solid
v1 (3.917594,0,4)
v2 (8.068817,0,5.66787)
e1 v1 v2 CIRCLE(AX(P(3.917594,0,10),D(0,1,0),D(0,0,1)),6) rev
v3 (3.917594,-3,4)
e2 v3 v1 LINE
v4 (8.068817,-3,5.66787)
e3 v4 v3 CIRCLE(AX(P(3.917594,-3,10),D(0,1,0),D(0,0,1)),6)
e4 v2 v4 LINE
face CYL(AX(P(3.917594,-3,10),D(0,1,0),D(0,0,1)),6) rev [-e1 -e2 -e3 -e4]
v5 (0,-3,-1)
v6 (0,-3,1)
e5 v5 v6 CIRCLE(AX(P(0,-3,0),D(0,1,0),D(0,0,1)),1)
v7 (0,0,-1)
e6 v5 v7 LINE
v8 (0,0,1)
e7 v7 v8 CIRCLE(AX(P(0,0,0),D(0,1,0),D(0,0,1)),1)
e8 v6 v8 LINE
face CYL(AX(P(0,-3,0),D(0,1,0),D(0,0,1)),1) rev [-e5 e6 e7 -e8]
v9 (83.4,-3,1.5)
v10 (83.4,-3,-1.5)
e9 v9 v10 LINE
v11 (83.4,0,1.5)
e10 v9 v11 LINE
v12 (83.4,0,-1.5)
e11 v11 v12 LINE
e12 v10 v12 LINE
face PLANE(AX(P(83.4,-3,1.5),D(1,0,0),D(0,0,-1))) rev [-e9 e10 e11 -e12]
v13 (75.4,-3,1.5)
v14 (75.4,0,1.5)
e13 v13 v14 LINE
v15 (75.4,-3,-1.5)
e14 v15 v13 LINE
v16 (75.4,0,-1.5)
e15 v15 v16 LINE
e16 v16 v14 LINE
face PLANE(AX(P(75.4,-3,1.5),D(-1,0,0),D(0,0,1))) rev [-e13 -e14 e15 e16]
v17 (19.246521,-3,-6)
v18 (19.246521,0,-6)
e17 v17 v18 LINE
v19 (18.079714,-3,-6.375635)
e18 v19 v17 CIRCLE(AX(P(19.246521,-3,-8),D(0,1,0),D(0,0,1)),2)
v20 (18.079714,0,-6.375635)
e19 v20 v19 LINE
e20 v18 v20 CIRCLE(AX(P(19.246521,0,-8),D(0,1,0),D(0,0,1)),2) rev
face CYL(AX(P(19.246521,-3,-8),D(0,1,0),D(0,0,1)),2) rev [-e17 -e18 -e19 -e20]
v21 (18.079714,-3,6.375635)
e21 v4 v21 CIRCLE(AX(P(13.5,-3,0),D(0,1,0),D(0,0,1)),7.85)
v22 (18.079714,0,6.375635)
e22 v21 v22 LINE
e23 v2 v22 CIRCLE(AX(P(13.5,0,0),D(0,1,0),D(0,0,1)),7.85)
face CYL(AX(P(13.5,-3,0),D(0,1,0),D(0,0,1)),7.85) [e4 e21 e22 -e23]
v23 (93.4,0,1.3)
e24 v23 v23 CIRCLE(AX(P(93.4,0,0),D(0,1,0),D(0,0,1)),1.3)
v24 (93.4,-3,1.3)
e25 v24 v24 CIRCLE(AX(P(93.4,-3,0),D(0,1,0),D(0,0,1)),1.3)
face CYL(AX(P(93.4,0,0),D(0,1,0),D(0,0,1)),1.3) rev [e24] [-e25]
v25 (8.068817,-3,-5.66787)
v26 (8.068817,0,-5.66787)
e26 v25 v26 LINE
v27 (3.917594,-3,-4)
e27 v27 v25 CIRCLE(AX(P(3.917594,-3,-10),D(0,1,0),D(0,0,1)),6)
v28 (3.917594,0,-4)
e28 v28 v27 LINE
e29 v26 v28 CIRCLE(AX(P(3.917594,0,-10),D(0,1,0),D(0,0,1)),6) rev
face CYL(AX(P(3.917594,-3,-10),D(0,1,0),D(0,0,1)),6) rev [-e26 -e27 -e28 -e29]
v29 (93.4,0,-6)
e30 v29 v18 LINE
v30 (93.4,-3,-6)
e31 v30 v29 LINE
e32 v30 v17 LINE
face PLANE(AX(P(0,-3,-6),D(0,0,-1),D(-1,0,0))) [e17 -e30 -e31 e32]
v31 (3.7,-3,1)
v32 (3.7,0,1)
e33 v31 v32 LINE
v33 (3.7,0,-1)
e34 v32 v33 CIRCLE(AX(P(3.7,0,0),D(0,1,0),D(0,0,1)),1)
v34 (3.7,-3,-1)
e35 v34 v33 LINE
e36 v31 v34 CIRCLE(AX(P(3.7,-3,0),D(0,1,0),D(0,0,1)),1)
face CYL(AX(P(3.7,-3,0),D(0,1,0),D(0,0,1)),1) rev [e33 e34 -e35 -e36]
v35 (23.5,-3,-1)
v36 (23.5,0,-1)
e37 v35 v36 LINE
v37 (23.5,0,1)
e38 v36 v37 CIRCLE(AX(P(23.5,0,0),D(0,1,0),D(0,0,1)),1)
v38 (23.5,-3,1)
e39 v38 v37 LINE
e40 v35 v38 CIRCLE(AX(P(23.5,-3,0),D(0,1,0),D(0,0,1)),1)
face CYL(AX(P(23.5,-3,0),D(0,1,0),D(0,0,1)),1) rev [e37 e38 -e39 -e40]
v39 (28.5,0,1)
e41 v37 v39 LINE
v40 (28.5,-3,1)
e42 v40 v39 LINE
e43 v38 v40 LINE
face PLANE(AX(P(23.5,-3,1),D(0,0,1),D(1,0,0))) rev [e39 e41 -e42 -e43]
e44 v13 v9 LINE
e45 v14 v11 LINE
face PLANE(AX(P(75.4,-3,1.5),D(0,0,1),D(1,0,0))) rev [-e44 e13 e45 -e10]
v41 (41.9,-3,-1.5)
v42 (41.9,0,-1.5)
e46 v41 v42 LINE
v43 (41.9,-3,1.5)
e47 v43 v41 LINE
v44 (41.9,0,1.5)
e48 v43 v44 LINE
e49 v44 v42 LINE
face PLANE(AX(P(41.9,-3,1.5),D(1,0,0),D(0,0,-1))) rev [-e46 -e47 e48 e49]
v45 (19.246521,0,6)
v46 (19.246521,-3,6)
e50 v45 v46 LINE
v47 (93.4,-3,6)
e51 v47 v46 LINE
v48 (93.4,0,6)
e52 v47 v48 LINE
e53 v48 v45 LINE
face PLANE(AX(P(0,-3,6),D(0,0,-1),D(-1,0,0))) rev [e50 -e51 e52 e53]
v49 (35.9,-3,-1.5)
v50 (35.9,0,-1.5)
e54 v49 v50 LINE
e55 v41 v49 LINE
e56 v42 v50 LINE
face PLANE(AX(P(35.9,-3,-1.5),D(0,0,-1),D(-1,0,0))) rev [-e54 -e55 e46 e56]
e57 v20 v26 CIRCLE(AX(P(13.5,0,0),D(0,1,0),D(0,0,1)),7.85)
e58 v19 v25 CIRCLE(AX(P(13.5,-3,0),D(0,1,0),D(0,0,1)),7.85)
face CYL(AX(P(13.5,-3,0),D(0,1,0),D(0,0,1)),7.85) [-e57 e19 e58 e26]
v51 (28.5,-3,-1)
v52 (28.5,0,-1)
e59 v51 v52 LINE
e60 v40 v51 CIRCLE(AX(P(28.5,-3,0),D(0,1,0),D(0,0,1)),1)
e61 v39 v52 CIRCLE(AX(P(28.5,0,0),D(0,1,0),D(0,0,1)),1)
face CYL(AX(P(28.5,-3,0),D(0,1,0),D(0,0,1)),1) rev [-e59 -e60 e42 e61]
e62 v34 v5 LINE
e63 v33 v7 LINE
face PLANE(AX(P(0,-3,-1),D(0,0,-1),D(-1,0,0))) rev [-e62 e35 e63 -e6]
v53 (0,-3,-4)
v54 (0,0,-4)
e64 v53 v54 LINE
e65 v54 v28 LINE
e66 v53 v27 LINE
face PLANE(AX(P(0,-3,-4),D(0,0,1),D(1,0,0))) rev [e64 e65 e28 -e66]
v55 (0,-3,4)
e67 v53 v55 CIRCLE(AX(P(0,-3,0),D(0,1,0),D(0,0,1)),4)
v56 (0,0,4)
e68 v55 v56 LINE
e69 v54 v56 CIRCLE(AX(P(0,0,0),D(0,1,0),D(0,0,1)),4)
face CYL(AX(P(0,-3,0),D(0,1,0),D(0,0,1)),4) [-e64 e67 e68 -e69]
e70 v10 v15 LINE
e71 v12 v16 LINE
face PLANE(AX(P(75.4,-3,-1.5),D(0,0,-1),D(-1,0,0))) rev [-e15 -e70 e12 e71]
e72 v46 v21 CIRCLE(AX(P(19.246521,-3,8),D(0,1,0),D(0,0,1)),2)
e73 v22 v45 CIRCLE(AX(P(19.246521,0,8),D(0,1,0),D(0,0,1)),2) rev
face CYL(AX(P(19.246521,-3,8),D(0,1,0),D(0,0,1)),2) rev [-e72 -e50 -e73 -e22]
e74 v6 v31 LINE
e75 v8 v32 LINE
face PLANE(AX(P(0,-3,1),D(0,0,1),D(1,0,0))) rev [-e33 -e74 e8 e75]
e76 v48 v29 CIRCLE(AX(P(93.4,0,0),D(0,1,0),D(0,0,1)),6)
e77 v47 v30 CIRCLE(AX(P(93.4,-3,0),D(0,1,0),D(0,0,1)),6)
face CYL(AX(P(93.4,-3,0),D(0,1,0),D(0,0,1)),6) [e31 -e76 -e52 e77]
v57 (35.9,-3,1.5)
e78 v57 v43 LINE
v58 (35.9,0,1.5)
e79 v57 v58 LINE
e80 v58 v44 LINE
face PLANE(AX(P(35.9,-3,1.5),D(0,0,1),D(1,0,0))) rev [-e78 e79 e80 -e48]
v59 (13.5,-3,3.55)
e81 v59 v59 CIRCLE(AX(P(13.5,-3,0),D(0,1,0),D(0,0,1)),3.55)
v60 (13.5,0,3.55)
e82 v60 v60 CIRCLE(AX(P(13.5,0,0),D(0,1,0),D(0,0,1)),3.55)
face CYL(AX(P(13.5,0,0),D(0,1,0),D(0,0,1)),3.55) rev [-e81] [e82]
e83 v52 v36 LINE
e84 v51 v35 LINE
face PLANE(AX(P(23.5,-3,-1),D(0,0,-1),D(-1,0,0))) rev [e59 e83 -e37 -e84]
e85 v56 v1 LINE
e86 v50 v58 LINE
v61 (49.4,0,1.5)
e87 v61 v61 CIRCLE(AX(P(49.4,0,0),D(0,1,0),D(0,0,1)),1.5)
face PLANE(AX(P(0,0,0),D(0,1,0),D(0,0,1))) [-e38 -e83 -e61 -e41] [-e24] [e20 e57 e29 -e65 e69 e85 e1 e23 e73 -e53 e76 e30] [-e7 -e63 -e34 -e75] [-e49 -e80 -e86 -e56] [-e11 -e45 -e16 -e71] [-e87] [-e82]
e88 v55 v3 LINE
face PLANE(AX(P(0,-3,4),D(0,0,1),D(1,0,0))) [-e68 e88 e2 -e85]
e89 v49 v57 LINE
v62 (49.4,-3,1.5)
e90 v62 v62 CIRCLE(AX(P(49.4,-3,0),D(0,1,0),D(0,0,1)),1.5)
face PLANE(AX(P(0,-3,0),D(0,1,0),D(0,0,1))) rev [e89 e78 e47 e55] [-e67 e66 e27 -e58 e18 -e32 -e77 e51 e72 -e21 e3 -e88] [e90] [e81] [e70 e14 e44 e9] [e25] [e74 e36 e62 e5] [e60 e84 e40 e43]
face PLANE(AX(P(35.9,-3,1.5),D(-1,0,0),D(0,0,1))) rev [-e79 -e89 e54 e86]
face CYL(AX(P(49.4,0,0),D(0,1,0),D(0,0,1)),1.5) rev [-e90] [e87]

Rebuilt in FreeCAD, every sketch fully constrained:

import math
import FreeCAD as App
import Part
import Sketcher


def edges_at(feature, points):
    """Names of the edges that pass closest to the given points."""
    edges = feature.Shape.Edges
    near = lambda p: min(range(len(edges)), key=lambda i: edges[i].distToShape(Part.Vertex(*p))[0])
    return sorted({f"Edge{near(p) + 1}" for p in points})

doc = App.newDocument("Part")
body = doc.addObject("PartDesign::Body", "Body")

# Sketch on XZ plane
sketch1 = body.newObject("Sketcher::SketchObject", "Sketch")
sketch1.AttachmentSupport = (doc.getObject("XZ_Plane"), [""])
sketch1.MapMode = "FlatFace"
sketch1.addGeometry(Part.ArcOfCircle(Part.Circle(App.Vector(0, 0, 0), App.Vector(0, 0, 1), 4), math.radians(90), math.radians(270)), False)
sketch1.addGeometry(Part.LineSegment(App.Vector(0, 4, 0), App.Vector(6.7, 4, 0)), False)
sketch1.addGeometry(Part.ArcOfCircle(Part.Circle(App.Vector(13.5, 0, 0), App.Vector(0, 0, 1), 7.8), math.radians(50), math.radians(149)), False)
sketch1.addGeometry(Part.LineSegment(App.Vector(18.6, 6, 0), App.Vector(93.4, 6, 0)), False)
sketch1.addGeometry(Part.ArcOfCircle(Part.Circle(App.Vector(93.4, 0, 0), App.Vector(0, 0, 1), 6), math.radians(-90), math.radians(90)), False)
sketch1.addGeometry(Part.LineSegment(App.Vector(93.4, -6, 0), App.Vector(18.6, -6, 0)), False)
sketch1.addGeometry(Part.ArcOfCircle(Part.Circle(App.Vector(13.5, 0, 0), App.Vector(0, 0, 1), 7.8), math.radians(-149), math.radians(-50)), False)
sketch1.addGeometry(Part.LineSegment(App.Vector(6.7, -4, 0), App.Vector(0, -4, 0)), False)
sketch1.addConstraint(Sketcher.Constraint("Tangent", 0, 1, 1, 1))
sketch1.addConstraint(Sketcher.Constraint("Coincident", 1, 2, 2, 2))
sketch1.addConstraint(Sketcher.Constraint("Coincident", 2, 1, 3, 1))
sketch1.addConstraint(Sketcher.Constraint("Tangent", 3, 2, 4, 2))
sketch1.addConstraint(Sketcher.Constraint("Tangent", 4, 1, 5, 1))
sketch1.addConstraint(Sketcher.Constraint("Coincident", 5, 2, 6, 2))
sketch1.addConstraint(Sketcher.Constraint("Coincident", 6, 1, 7, 1))
sketch1.addConstraint(Sketcher.Constraint("Tangent", 7, 2, 0, 2))
sketch1.addConstraint(Sketcher.Constraint("Horizontal", 1))
sketch1.addConstraint(Sketcher.Constraint("Horizontal", 3))
sketch1.addConstraint(Sketcher.Constraint("Horizontal", 5))
sketch1.addConstraint(Sketcher.Constraint("Horizontal", 7))
sketch1.addConstraint(Sketcher.Constraint("Coincident", 0, 3, -1, 1))
sketch1.addConstraint(Sketcher.Constraint("Coincident", 6, 3, 2, 3))
sketch1.addConstraint(Sketcher.Constraint("Equal", 2, 6))
sketch1.addConstraint(Sketcher.Constraint("Symmetric", 2, 1, 5, 2, -1))
sketch1.addConstraint(Sketcher.Constraint("Radius", 0, 4.0))
sketch1.addConstraint(Sketcher.Constraint("Radius", 4, 6.0))
sketch1.addConstraint(Sketcher.Constraint("Radius", 2, 7.85))
sketch1.addConstraint(Sketcher.Constraint("DistanceX", -1, 1, 2, 3, 13.5))
sketch1.addConstraint(Sketcher.Constraint("DistanceX", -1, 1, 4, 3, 93.4))
pad1 = body.newObject("PartDesign::Pad", "Pad")
pad1.Profile = sketch1
pad1.Length = 3

# Sketch on XZ plane
sketch2 = body.newObject("Sketcher::SketchObject", "Sketch001")
sketch2.AttachmentSupport = (doc.getObject("XZ_Plane"), [""])
sketch2.MapMode = "FlatFace"
sketch2.addGeometry(Part.Circle(App.Vector(13.5, 0, 0), App.Vector(0, 0, 1), 3.5), False)
sketch2.addConstraint(Sketcher.Constraint("PointOnObject", 0, 3, -1))
sketch2.addConstraint(Sketcher.Constraint("Diameter", 0, 7.1))
sketch2.addConstraint(Sketcher.Constraint("DistanceX", -1, 1, 0, 3, 13.5))
doc.recompute()
hole = body.newObject("PartDesign::Hole", "Hole")
hole.Profile = sketch2
hole.ThreadType = "None"
hole.Diameter = 7.1
hole.DepthType = "ThroughAll"
hole.Reversed = True

# Sketch on XZ plane
sketch3 = body.newObject("Sketcher::SketchObject", "Sketch002")
sketch3.AttachmentSupport = (doc.getObject("XZ_Plane"), [""])
sketch3.MapMode = "FlatFace"
sketch3.addGeometry(Part.LineSegment(App.Vector(3.7, -1, 0), App.Vector(0, -1, 0)), False)
sketch3.addGeometry(Part.ArcOfCircle(Part.Circle(App.Vector(0, 0, 0), App.Vector(0, 0, 1), 1), math.radians(90), math.radians(270)), False)
sketch3.addGeometry(Part.LineSegment(App.Vector(0, 1, 0), App.Vector(3.7, 1, 0)), False)
sketch3.addGeometry(Part.ArcOfCircle(Part.Circle(App.Vector(3.7, 0, 0), App.Vector(0, 0, 1), 1), math.radians(-90), math.radians(90)), False)
sketch3.addGeometry(Part.LineSegment(App.Vector(28.5, -1, 0), App.Vector(23.5, -1, 0)), False)
sketch3.addGeometry(Part.ArcOfCircle(Part.Circle(App.Vector(23.5, 0, 0), App.Vector(0, 0, 1), 1), math.radians(90), math.radians(270)), False)
sketch3.addGeometry(Part.LineSegment(App.Vector(23.5, 1, 0), App.Vector(28.5, 1, 0)), False)
sketch3.addGeometry(Part.ArcOfCircle(Part.Circle(App.Vector(28.5, 0, 0), App.Vector(0, 0, 1), 1), math.radians(-90), math.radians(90)), False)
sketch3.addConstraint(Sketcher.Constraint("Tangent", 0, 2, 1, 2))
sketch3.addConstraint(Sketcher.Constraint("Tangent", 1, 1, 2, 1))
sketch3.addConstraint(Sketcher.Constraint("Tangent", 2, 2, 3, 2))
sketch3.addConstraint(Sketcher.Constraint("Tangent", 3, 1, 0, 1))
sketch3.addConstraint(Sketcher.Constraint("Tangent", 4, 2, 5, 2))
sketch3.addConstraint(Sketcher.Constraint("Tangent", 5, 1, 6, 1))
sketch3.addConstraint(Sketcher.Constraint("Tangent", 6, 2, 7, 2))
sketch3.addConstraint(Sketcher.Constraint("Tangent", 7, 1, 4, 1))
sketch3.addConstraint(Sketcher.Constraint("Horizontal", 0))
sketch3.addConstraint(Sketcher.Constraint("Horizontal", 2))
sketch3.addConstraint(Sketcher.Constraint("Horizontal", 4))
sketch3.addConstraint(Sketcher.Constraint("Horizontal", 6))
sketch3.addConstraint(Sketcher.Constraint("Coincident", 1, 3, -1, 1))
sketch3.addConstraint(Sketcher.Constraint("Equal", 3, 5))
sketch3.addConstraint(Sketcher.Constraint("PointOnObject", 5, 3, -1))
sketch3.addConstraint(Sketcher.Constraint("Radius", 1, 1.0))
sketch3.addConstraint(Sketcher.Constraint("DistanceX", 4, 2, 4, 1, 5.0))
sketch3.addConstraint(Sketcher.Constraint("DistanceX", 0, 2, 0, 1, 3.7))
sketch3.addConstraint(Sketcher.Constraint("DistanceX", -1, 1, 5, 3, 23.5))
pocket1 = body.newObject("PartDesign::Pocket", "Pocket")
pocket1.Profile = sketch3
pocket1.Type = "ThroughAll"
pocket1.Reversed = True

# Sketch on XZ plane
sketch4 = body.newObject("Sketcher::SketchObject", "Sketch003")
sketch4.AttachmentSupport = (doc.getObject("XZ_Plane"), [""])
sketch4.MapMode = "FlatFace"
sketch4.addGeometry(Part.LineSegment(App.Vector(75.4, -1.5, 0), App.Vector(75.4, 1.5, 0)), False)
sketch4.addGeometry(Part.LineSegment(App.Vector(75.4, 1.5, 0), App.Vector(83.4, 1.5, 0)), False)
sketch4.addGeometry(Part.LineSegment(App.Vector(83.4, 1.5, 0), App.Vector(83.4, -1.5, 0)), False)
sketch4.addGeometry(Part.LineSegment(App.Vector(83.4, -1.5, 0), App.Vector(75.4, -1.5, 0)), False)
sketch4.addGeometry(Part.LineSegment(App.Vector(35.9, -1.5, 0), App.Vector(35.9, 1.5, 0)), False)
sketch4.addGeometry(Part.LineSegment(App.Vector(35.9, 1.5, 0), App.Vector(41.9, 1.5, 0)), False)
sketch4.addGeometry(Part.LineSegment(App.Vector(41.9, 1.5, 0), App.Vector(41.9, -1.5, 0)), False)
sketch4.addGeometry(Part.LineSegment(App.Vector(41.9, -1.5, 0), App.Vector(35.9, -1.5, 0)), False)
sketch4.addConstraint(Sketcher.Constraint("Coincident", 0, 2, 1, 1))
sketch4.addConstraint(Sketcher.Constraint("Coincident", 1, 2, 2, 1))
sketch4.addConstraint(Sketcher.Constraint("Coincident", 2, 2, 3, 1))
sketch4.addConstraint(Sketcher.Constraint("Coincident", 3, 2, 0, 1))
sketch4.addConstraint(Sketcher.Constraint("Coincident", 4, 2, 5, 1))
sketch4.addConstraint(Sketcher.Constraint("Coincident", 5, 2, 6, 1))
sketch4.addConstraint(Sketcher.Constraint("Coincident", 6, 2, 7, 1))
sketch4.addConstraint(Sketcher.Constraint("Coincident", 7, 2, 4, 1))
sketch4.addConstraint(Sketcher.Constraint("Vertical", 0))
sketch4.addConstraint(Sketcher.Constraint("Horizontal", 1))
sketch4.addConstraint(Sketcher.Constraint("Vertical", 2))
sketch4.addConstraint(Sketcher.Constraint("Horizontal", 3))
sketch4.addConstraint(Sketcher.Constraint("Vertical", 4))
sketch4.addConstraint(Sketcher.Constraint("Horizontal", 5))
sketch4.addConstraint(Sketcher.Constraint("Vertical", 6))
sketch4.addConstraint(Sketcher.Constraint("Horizontal", 7))
sketch4.addConstraint(Sketcher.Constraint("Horizontal", 1, 2, 4, 2))
sketch4.addConstraint(Sketcher.Constraint("Horizontal", 3, 2, 6, 2))
sketch4.addConstraint(Sketcher.Constraint("DistanceX", 1, 1, 1, 2, 8.0))
sketch4.addConstraint(Sketcher.Constraint("DistanceX", 5, 1, 5, 2, 6.0))
sketch4.addConstraint(Sketcher.Constraint("DistanceY", 0, 1, 0, 2, 3.0))
sketch4.addConstraint(Sketcher.Constraint("DistanceX", -1, 1, 0, 2, 75.4))
sketch4.addConstraint(Sketcher.Constraint("DistanceY", -1, 1, 0, 2, 1.5))
sketch4.addConstraint(Sketcher.Constraint("DistanceX", -1, 1, 4, 2, 35.9))
pocket2 = body.newObject("PartDesign::Pocket", "Pocket001")
pocket2.Profile = sketch4
pocket2.Type = "ThroughAll"
pocket2.Reversed = True

# Sketch on XZ plane
sketch5 = body.newObject("Sketcher::SketchObject", "Sketch004")
sketch5.AttachmentSupport = (doc.getObject("XZ_Plane"), [""])
sketch5.MapMode = "FlatFace"
sketch5.addGeometry(Part.Circle(App.Vector(93.4, 0, 0), App.Vector(0, 0, 1), 1.3), False)
sketch5.addConstraint(Sketcher.Constraint("PointOnObject", 0, 3, -1))
sketch5.addConstraint(Sketcher.Constraint("Diameter", 0, 2.6))
sketch5.addConstraint(Sketcher.Constraint("DistanceX", -1, 1, 0, 3, 93.4))
doc.recompute()
hole2 = body.newObject("PartDesign::Hole", "Hole001")
hole2.Profile = sketch5
hole2.ThreadType = "None"
hole2.Diameter = 2.6
hole2.DepthType = "ThroughAll"
hole2.Reversed = True

# Sketch on XZ plane
sketch6 = body.newObject("Sketcher::SketchObject", "Sketch005")
sketch6.AttachmentSupport = (doc.getObject("XZ_Plane"), [""])
sketch6.MapMode = "FlatFace"
sketch6.addGeometry(Part.Circle(App.Vector(49.4, 0, 0), App.Vector(0, 0, 1), 1.5), False)
sketch6.addConstraint(Sketcher.Constraint("PointOnObject", 0, 3, -1))
sketch6.addConstraint(Sketcher.Constraint("Diameter", 0, 3.0))
sketch6.addConstraint(Sketcher.Constraint("DistanceX", -1, 1, 0, 3, 49.4))
doc.recompute()
hole3 = body.newObject("PartDesign::Hole", "Hole002")
hole3.Profile = sketch6
hole3.ThreadType = "None"
hole3.Diameter = 3
hole3.DepthType = "ThroughAll"
hole3.Reversed = True
doc.recompute()

fillet = body.newObject("PartDesign::Fillet", "Fillet")
fillet.Base = (hole3, edges_at(hole3, [(18.562, -1.5, -6), (18.562, -1.5, 6)]))
fillet.Radius = 2
doc.recompute()

fillet2 = body.newObject("PartDesign::Fillet", "Fillet001")
fillet2.Base = (fillet, edges_at(fillet, [(6.746, -1.5, -4), (6.746, -1.5, 4)]))
fillet2.Radius = 6

doc.recompute()
